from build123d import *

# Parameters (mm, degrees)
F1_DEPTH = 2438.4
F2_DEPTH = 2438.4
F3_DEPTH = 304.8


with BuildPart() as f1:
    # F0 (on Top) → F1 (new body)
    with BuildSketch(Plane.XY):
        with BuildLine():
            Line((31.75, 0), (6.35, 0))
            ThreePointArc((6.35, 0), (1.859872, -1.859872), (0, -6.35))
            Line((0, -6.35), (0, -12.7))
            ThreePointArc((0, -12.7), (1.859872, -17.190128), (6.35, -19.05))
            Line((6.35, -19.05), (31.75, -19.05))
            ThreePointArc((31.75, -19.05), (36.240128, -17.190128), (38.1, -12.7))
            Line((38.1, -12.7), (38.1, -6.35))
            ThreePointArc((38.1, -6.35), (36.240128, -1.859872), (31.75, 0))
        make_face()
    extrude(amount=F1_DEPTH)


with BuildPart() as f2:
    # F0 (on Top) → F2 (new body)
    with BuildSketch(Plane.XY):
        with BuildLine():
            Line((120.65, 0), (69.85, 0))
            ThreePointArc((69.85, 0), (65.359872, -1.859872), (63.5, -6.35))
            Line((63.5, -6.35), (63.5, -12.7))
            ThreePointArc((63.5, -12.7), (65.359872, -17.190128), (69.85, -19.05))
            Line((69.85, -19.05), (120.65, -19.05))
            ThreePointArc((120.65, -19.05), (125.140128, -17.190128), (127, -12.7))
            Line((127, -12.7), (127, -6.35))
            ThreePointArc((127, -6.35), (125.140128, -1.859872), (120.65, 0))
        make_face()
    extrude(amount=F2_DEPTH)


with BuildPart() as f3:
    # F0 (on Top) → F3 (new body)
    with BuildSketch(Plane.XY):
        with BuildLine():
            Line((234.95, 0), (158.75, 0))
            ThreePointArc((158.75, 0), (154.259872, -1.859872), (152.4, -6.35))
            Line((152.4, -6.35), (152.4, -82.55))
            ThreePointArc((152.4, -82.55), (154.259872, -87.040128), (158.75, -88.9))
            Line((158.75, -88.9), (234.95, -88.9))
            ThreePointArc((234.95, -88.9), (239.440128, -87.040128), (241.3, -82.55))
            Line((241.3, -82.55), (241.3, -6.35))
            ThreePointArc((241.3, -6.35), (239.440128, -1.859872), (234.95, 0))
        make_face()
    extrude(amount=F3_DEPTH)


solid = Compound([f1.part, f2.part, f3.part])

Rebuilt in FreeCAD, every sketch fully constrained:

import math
import FreeCAD as App
import Part
import Sketcher
from FreeCAD import Vector
Q = App.Units.Quantity

doc = App.newDocument("Part")
body = doc.addObject("PartDesign::Body", "Body")

sketch1 = body.newObject("Sketcher::SketchObject", "Sketch")
sketch1.AttachmentSupport = (doc.getObject("XY_Plane"), [""])
sketch1.MapMode = "FlatFace"
sketch1.addGeometry([
    Part.LineSegment(Vector(32, 0, 0), Vector(6, 0, 0)),
    Part.ArcOfCircle(Part.Circle(Vector(6, -6, 0), Vector(0, 0, 1), 6), math.radians(90), math.radians(180)),
    Part.LineSegment(Vector(0, -6, 0), Vector(0, -13, 0)),
    Part.ArcOfCircle(Part.Circle(Vector(6, -13, 0), Vector(0, 0, 1), 6), math.radians(-180), math.radians(-90)),
    Part.LineSegment(Vector(6, -19, 0), Vector(32, -19, 0)),
    Part.ArcOfCircle(Part.Circle(Vector(32, -13, 0), Vector(0, 0, 1), 6), math.radians(-90), math.radians(0)),
    Part.LineSegment(Vector(38, -13, 0), Vector(38, -6, 0)),
    Part.ArcOfCircle(Part.Circle(Vector(32, -6, 0), Vector(0, 0, 1), 6), math.radians(0), math.radians(90)),
], False)
sketch1.addConstraint([
    Sketcher.Constraint("Tangent", 0, 2, 1, 1),
    Sketcher.Constraint("Tangent", 1, 2, 2, 1),
    Sketcher.Constraint("Tangent", 2, 2, 3, 1),
    Sketcher.Constraint("Tangent", 3, 2, 4, 1),
    Sketcher.Constraint("Tangent", 4, 2, 5, 1),
    Sketcher.Constraint("Tangent", 5, 2, 6, 1),
    Sketcher.Constraint("Tangent", 6, 2, 7, 1),
    Sketcher.Constraint("Tangent", 7, 2, 0, 1),
    Sketcher.Constraint("Horizontal", 0),
    Sketcher.Constraint("Vertical", 2),
    Sketcher.Constraint("Horizontal", 4),
    Sketcher.Constraint("Vertical", 6),
    Sketcher.Constraint("Equal", 1, 3),
    Sketcher.Constraint("Equal", 3, 5),
    Sketcher.Constraint("Equal", 5, 7),
    Sketcher.Constraint("PointOnObject", 0, 2, -1),
    Sketcher.Constraint("PointOnObject", 1, 2, -2),
    Sketcher.Constraint("DistanceX", 0, 2, 0, 1, Q("1 in")),
    Sketcher.Constraint("Radius", 1, Q("0.25 in")),
    Sketcher.Constraint("DistanceY", 2, 2, 2, 1, Q("0.25 in")),
])
pad1 = body.newObject("PartDesign::Pad", "Pad")
pad1.Profile = sketch1
pad1.Length = Q("96 in")
body2 = doc.addObject("PartDesign::Body", "Body001")

sketch2 = body2.newObject("Sketcher::SketchObject", "Sketch001")
sketch2.AttachmentSupport = (doc.getObject("XY_Plane001"), [""])
sketch2.MapMode = "FlatFace"
sketch2.addGeometry([
    Part.LineSegment(Vector(121, 0, 0), Vector(70, 0, 0)),
    Part.ArcOfCircle(Part.Circle(Vector(70, -6, 0), Vector(0, 0, 1), 6), math.radians(90), math.radians(180)),
    Part.LineSegment(Vector(64, -6, 0), Vector(64, -13, 0)),
    Part.ArcOfCircle(Part.Circle(Vector(70, -13, 0), Vector(0, 0, 1), 6), math.radians(-180), math.radians(-90)),
    Part.LineSegment(Vector(70, -19, 0), Vector(121, -19, 0)),
    Part.ArcOfCircle(Part.Circle(Vector(121, -13, 0), Vector(0, 0, 1), 6), math.radians(-90), math.radians(0)),
    Part.LineSegment(Vector(127, -13, 0), Vector(127, -6, 0)),
    Part.ArcOfCircle(Part.Circle(Vector(121, -6, 0), Vector(0, 0, 1), 6), math.radians(0), math.radians(90)),
], False)
sketch2.addConstraint([
    Sketcher.Constraint("Tangent", 0, 2, 1, 1),
    Sketcher.Constraint("Tangent", 1, 2, 2, 1),
    Sketcher.Constraint("Tangent", 2, 2, 3, 1),
    Sketcher.Constraint("Tangent", 3, 2, 4, 1),
    Sketcher.Constraint("Tangent", 4, 2, 5, 1),
    Sketcher.Constraint("Tangent", 5, 2, 6, 1),
    Sketcher.Constraint("Tangent", 6, 2, 7, 1),
    Sketcher.Constraint("Tangent", 7, 2, 0, 1),
    Sketcher.Constraint("Horizontal", 0),
    Sketcher.Constraint("Vertical", 2),
    Sketcher.Constraint("Horizontal", 4),
    Sketcher.Constraint("Vertical", 6),
    Sketcher.Constraint("Equal", 1, 3),
    Sketcher.Constraint("Equal", 3, 5),
    Sketcher.Constraint("Equal", 5, 7),
    Sketcher.Constraint("PointOnObject", 0, 2, -1),
    Sketcher.Constraint("DistanceX", 0, 2, 0, 1, Q("2 in")),
    Sketcher.Constraint("Radius", 1, Q("0.25 in")),
    Sketcher.Constraint("DistanceX", -1, 1, 5, 2, Q("5 in")),
    Sketcher.Constraint("DistanceY", 2, 2, 2, 1, Q("0.25 in")),
])
pad2 = body2.newObject("PartDesign::Pad", "Pad001")
pad2.Profile = sketch2
pad2.Length = Q("96 in")
body3 = doc.addObject("PartDesign::Body", "Body002")

sketch3 = body3.newObject("Sketcher::SketchObject", "Sketch002")
sketch3.AttachmentSupport = (doc.getObject("XY_Plane002"), [""])
sketch3.MapMode = "FlatFace"
sketch3.addGeometry([
    Part.LineSegment(Vector(235, 0, 0), Vector(159, 0, 0)),
    Part.ArcOfCircle(Part.Circle(Vector(159, -6, 0), Vector(0, 0, 1), 6), math.radians(90), math.radians(180)),
    Part.LineSegment(Vector(152, -6, 0), Vector(152, -83, 0)),
    Part.ArcOfCircle(Part.Circle(Vector(159, -83, 0), Vector(0, 0, 1), 6), math.radians(-180), math.radians(-90)),
    Part.LineSegment(Vector(159, -89, 0), Vector(235, -89, 0)),
    Part.ArcOfCircle(Part.Circle(Vector(235, -83, 0), Vector(0, 0, 1), 6), math.radians(-90), math.radians(0)),
    Part.LineSegment(Vector(241, -83, 0), Vector(241, -6, 0)),
    Part.ArcOfCircle(Part.Circle(Vector(235, -6, 0), Vector(0, 0, 1), 6), math.radians(0), math.radians(90)),
], False)
sketch3.addConstraint([
    Sketcher.Constraint("Tangent", 0, 2, 1, 1),
    Sketcher.Constraint("Tangent", 1, 2, 2, 1),
    Sketcher.Constraint("Tangent", 2, 2, 3, 1),
    Sketcher.Constraint("Tangent", 3, 2, 4, 1),
    Sketcher.Constraint("Tangent", 4, 2, 5, 1),
    Sketcher.Constraint("Tangent", 5, 2, 6, 1),
    Sketcher.Constraint("Tangent", 6, 2, 7, 1),
    Sketcher.Constraint("Tangent", 7, 2, 0, 1),
    Sketcher.Constraint("Horizontal", 0),
    Sketcher.Constraint("Vertical", 2),
    Sketcher.Constraint("Horizontal", 4),
    Sketcher.Constraint("Vertical", 6),
    Sketcher.Constraint("Equal", 1, 3),
    Sketcher.Constraint("Equal", 3, 5),
    Sketcher.Constraint("Equal", 5, 7),
    Sketcher.Constraint("PointOnObject", 0, 2, -1),
    Sketcher.Constraint("Equal", 4, 2),
    Sketcher.Constraint("DistanceX", 0, 2, 0, 1, Q("3 in")),
    Sketcher.Constraint("Radius", 1, Q("0.25 in")),
    Sketcher.Constraint("DistanceX", -1, 1, 1, 2, Q("6 in")),
])
pad3 = body3.newObject("PartDesign::Pad", "Pad002")
pad3.Profile = sketch3
pad3.Length = Q("12 in")

doc.recompute()
